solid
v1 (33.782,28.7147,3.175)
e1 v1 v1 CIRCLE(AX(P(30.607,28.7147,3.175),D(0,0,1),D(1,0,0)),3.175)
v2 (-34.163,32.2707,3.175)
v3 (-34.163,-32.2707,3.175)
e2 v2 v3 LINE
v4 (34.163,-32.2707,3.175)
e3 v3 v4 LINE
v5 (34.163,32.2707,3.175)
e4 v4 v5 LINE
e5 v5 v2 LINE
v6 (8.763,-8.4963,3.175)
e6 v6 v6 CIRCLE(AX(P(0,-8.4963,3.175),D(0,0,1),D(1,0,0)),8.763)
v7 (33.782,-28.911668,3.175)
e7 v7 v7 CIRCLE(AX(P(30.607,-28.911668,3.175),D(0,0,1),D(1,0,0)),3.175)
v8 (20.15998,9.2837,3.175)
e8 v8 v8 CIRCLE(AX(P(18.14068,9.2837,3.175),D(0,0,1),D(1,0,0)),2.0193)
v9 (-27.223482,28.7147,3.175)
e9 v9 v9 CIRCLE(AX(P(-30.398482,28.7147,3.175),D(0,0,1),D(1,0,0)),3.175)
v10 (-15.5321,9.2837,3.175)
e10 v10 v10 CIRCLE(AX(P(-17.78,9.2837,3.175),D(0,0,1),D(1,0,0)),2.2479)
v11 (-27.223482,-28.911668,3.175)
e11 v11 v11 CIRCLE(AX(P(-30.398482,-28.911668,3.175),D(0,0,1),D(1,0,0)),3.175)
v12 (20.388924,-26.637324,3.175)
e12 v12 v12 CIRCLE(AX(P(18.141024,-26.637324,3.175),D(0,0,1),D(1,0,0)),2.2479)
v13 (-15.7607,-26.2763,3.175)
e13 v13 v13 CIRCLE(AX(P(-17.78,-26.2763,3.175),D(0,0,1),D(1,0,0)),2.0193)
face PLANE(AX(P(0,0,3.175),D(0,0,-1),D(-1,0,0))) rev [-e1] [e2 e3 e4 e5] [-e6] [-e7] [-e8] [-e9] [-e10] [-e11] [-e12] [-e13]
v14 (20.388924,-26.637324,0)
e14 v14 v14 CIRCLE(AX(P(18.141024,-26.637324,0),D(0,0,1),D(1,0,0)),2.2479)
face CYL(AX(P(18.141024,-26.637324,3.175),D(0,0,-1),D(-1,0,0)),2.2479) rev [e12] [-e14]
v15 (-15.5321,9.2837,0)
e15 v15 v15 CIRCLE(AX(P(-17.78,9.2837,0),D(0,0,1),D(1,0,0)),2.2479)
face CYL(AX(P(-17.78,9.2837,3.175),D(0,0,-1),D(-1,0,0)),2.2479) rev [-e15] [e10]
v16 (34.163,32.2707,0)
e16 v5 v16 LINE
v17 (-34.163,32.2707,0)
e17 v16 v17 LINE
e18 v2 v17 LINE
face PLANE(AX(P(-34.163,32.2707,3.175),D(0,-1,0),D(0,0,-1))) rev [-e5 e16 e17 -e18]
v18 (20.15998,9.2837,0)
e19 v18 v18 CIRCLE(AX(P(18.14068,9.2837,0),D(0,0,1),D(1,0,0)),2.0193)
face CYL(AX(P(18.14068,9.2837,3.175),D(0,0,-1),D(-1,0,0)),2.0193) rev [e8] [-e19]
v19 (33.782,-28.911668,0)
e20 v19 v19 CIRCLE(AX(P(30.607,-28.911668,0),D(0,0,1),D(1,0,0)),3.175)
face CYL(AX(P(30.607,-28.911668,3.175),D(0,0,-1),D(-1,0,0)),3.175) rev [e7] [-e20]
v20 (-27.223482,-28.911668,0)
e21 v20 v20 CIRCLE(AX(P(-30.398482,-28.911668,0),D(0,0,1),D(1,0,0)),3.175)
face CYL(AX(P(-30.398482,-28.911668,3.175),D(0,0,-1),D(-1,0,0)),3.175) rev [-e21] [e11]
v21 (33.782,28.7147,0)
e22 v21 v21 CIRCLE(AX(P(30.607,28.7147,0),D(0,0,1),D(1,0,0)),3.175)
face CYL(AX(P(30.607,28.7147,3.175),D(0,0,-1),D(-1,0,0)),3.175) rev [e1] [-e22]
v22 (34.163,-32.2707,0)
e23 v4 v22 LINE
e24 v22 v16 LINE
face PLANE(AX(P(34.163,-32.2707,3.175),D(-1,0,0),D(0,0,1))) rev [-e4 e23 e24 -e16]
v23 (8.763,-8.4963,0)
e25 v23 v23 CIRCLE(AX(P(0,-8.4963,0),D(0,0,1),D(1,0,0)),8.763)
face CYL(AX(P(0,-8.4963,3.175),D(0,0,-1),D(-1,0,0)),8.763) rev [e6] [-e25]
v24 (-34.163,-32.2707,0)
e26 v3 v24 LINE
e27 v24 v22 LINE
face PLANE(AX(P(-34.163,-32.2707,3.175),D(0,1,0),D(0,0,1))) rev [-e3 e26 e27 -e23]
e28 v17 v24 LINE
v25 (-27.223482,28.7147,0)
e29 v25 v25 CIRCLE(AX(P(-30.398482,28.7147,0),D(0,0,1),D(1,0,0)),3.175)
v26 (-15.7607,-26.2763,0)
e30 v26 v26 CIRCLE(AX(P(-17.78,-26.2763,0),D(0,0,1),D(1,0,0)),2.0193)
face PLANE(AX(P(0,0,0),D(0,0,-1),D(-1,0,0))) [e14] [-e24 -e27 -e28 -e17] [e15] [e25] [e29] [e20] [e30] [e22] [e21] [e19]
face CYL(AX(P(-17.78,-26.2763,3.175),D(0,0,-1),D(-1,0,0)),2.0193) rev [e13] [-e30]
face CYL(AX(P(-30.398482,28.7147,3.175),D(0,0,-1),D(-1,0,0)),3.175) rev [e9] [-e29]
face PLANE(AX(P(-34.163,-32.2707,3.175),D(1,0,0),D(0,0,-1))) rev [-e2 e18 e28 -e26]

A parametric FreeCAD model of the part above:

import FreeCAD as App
import Part
import Sketcher

V = App.Vector
Q = App.Units.Quantity

doc = App.newDocument("Part")
body = doc.addObject("PartDesign::Body", "Body")

sketch1 = body.newObject("Sketcher::SketchObject", "Sketch")
sketch1.AttachmentSupport = (doc.getObject("XY_Plane"), [""])
sketch1.MapMode = "FlatFace"
sketch1.addGeometry(Part.LineSegment(V(-34.2, 32.3, 0), V(-34.2, -32.3, 0)), False)
sketch1.addGeometry(Part.LineSegment(V(-34.2, -32.3, 0), V(34.2, -32.3, 0)), False)
sketch1.addGeometry(Part.LineSegment(V(34.2, -32.3, 0), V(34.2, 32.3, 0)), False)
sketch1.addGeometry(Part.LineSegment(V(34.2, 32.3, 0), V(-34.2, 32.3, 0)), False)
sketch1.addGeometry(Part.Circle(V(-30.4, -28.9, 0), V(0, 0, 1), 3.2), False)
sketch1.addGeometry(Part.Circle(V(-17.8, -26.3, 0), V(0, 0, 1), 2), False)
sketch1.addGeometry(Part.Circle(V(0, -8.5, 0), V(0, 0, 1), 8.8), False)
sketch1.addGeometry(Part.Circle(V(18.1, -26.6, 0), V(0, 0, 1), 2.2), False)
sketch1.addGeometry(Part.Circle(V(30.6, -28.9, 0), V(0, 0, 1), 3.2), False)
sketch1.addGeometry(Part.Circle(V(-17.8, 9.3, 0), V(0, 0, 1), 2.2), False)
sketch1.addGeometry(Part.Circle(V(-30.4, 28.7, 0), V(0, 0, 1), 3.2), False)
sketch1.addGeometry(Part.Circle(V(18.1, 9.3, 0), V(0, 0, 1), 2), False)
sketch1.addGeometry(Part.Circle(V(30.6, 28.7, 0), V(0, 0, 1), 3.2), False)
sketch1.addConstraint(Sketcher.Constraint("Coincident", 0, 2, 1, 1))
sketch1.addConstraint(Sketcher.Constraint("Coincident", 1, 2, 2, 1))
sketch1.addConstraint(Sketcher.Constraint("Coincident", 2, 2, 3, 1))
sketch1.addConstraint(Sketcher.Constraint("Coincident", 3, 2, 0, 1))
sketch1.addConstraint(Sketcher.Constraint("Vertical", 0))
sketch1.addConstraint(Sketcher.Constraint("Horizontal", 1))
sketch1.addConstraint(Sketcher.Constraint("Vertical", 2))
sketch1.addConstraint(Sketcher.Constraint("Horizontal", 3))
sketch1.addConstraint(Sketcher.Constraint("Equal", 4, 8))
sketch1.addConstraint(Sketcher.Constraint("Equal", 7, 9))
sketch1.addConstraint(Sketcher.Constraint("Equal", 8, 10))
sketch1.addConstraint(Sketcher.Constraint("Equal", 5, 11))
sketch1.addConstraint(Sketcher.Constraint("Equal", 10, 12))
sketch1.addConstraint(Sketcher.Constraint("Symmetric", 0, 2, 2, 2, -1, 1))
sketch1.addConstraint(Sketcher.Constraint("PointOnObject", 6, 3, -2))
sketch1.addConstraint(Sketcher.Constraint("Horizontal", 4, 3, 8, 3))
sketch1.addConstraint(Sketcher.Constraint("Horizontal", 9, 3, 11, 3))
sketch1.addConstraint(Sketcher.Constraint("Horizontal", 10, 3, 12, 3))
sketch1.addConstraint(Sketcher.Constraint("Vertical", 5, 3, 9, 3))
sketch1.addConstraint(Sketcher.Constraint("Vertical", 4, 3, 10, 3))
sketch1.addConstraint(Sketcher.Constraint("Vertical", 8, 3, 12, 3))
sketch1.addConstraint(Sketcher.Constraint("Diameter", 4, Q("0.25 in")))
sketch1.addConstraint(Sketcher.Constraint("Diameter", 6, Q("0.69 in")))
sketch1.addConstraint(Sketcher.Constraint("Diameter", 5, Q("0.159 in")))
sketch1.addConstraint(Sketcher.Constraint("Diameter", 7, Q("0.177 in")))
sketch1.addConstraint(Sketcher.Constraint("DistanceX", 1, 1, 1, 2, Q("2.69 in")))
sketch1.addConstraint(Sketcher.Constraint("DistanceX", 5, 3, -1, 1, Q("0.7 in")))
sketch1.addConstraint(Sketcher.Constraint("DistanceY", 5, 3, 6, 3, Q("0.7 in")))
sketch1.addConstraint(Sketcher.Constraint("DistanceY", 6, 3, 9, 3, Q("0.7 in")))
sketch1.addConstraint(Sketcher.Constraint("DistanceY", 0, 2, 0, 1, Q("2.541 in")))
sketch1.addConstraint(Sketcher.Constraint("DistanceX", 8, 3, 1, 2, Q("0.14 in")))
sketch1.addConstraint(Sketcher.Constraint("DistanceY", 12, 3, 2, 2, Q("0.14 in")))
sketch1.addConstraint(Sketcher.Constraint("DistanceY", 9, 3, 10, 3, Q("0.765 in")))
sketch1.addConstraint(Sketcher.Constraint("DistanceX", -1, 1, 11, 3, Q("0.7142 in")))
sketch1.addConstraint(Sketcher.Constraint("DistanceY", 4, 3, -1, 1, Q("28.911668 mm")))
sketch1.addConstraint(Sketcher.Constraint("DistanceX", 4, 3, -1, 1, Q("30.398482 mm")))
sketch1.addConstraint(Sketcher.Constraint("DistanceX", -1, 1, 7, 3, Q("18.141024 mm")))
sketch1.addConstraint(Sketcher.Constraint("DistanceY", 7, 3, -1, 1, Q("26.637324 mm")))
pad1 = body.newObject("PartDesign::Pad", "Pad")
pad1.Profile = sketch1
pad1.Length = Q("0.125 in")

doc.recompute()
